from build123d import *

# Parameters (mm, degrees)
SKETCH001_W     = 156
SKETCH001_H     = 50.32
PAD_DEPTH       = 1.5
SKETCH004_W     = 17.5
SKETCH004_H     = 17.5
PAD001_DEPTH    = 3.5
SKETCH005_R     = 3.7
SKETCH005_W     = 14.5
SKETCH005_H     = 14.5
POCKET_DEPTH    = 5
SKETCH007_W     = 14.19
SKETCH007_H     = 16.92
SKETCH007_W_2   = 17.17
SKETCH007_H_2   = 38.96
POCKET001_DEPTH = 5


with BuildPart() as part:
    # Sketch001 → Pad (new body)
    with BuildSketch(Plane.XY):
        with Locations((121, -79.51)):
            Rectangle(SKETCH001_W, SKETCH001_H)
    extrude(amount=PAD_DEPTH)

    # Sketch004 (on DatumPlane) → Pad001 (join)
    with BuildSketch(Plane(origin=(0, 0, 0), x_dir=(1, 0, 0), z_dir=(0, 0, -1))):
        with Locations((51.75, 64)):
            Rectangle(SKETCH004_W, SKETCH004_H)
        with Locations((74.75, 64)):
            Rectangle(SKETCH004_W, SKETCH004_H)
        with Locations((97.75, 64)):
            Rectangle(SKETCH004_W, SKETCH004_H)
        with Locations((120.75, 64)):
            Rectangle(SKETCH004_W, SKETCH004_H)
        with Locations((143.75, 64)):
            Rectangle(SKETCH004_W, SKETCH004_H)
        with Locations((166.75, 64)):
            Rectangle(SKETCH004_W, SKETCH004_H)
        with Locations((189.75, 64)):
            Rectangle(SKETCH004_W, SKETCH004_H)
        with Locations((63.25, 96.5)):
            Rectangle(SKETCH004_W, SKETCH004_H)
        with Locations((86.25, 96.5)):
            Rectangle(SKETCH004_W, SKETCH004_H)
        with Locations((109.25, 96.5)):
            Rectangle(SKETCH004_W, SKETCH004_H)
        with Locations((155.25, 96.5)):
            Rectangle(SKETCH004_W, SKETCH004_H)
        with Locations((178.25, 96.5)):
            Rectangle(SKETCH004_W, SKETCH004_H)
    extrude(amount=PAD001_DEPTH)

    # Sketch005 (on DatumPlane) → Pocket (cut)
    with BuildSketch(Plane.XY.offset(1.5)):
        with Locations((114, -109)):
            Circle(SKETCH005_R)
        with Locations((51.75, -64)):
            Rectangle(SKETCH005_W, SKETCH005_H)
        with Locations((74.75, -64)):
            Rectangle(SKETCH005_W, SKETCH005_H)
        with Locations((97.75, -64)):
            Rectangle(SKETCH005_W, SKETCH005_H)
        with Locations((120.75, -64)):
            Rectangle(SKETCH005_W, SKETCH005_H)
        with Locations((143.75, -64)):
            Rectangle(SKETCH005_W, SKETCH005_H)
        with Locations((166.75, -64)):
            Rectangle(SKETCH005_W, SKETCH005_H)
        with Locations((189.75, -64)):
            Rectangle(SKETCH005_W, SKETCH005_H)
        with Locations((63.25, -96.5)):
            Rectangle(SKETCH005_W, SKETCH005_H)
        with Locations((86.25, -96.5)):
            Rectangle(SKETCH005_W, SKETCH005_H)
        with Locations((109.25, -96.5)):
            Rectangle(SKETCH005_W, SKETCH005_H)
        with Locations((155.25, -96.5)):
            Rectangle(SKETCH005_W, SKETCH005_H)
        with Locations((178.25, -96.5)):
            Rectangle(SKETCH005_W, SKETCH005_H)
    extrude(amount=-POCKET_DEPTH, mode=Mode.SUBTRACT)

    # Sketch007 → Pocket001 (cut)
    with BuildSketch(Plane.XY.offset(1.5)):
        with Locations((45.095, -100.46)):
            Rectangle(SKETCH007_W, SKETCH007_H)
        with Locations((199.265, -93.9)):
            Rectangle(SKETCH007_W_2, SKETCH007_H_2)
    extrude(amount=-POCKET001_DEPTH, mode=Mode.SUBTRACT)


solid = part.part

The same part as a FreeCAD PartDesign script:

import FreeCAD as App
import Part
import Sketcher
from FreeCAD import Vector

doc = App.newDocument("Part")
params = doc.addObject("Spreadsheet::Sheet", "Params")
for row, (alias, value) in enumerate([
    ("sketch1_width", "156 mm"),
    ("sketch1_height", "50.32 mm"),
    ("pad1_length", "1.5 mm"),
    ("sketch2_width", "17.5 mm"),
    ("pad2_length", "3.5 mm"),
    ("sketch3_diameter", "7.4 mm"),
    ("sketch3_width", "14.5 mm"),
    ("pocket1_length", "5 mm"),
    ("sketch4_width", "14.19 mm"),
    ("sketch4_width2", "17.17 mm"),
    ("sketch4_height", "16.92 mm"),
    ("sketch4_height2", "38.96 mm"),
    ("pocket2_length", "5 mm"),
], start=1):
    params.set(f"A{row}", alias)
    params.set(f"B{row}", "=" + value)
    params.setAlias(f"B{row}", alias)

body = doc.addObject("PartDesign::Body", "Body")

# Sketch on XY plane
sketch1 = body.newObject("Sketcher::SketchObject", "Sketch")
sketch1.AttachmentSupport = (doc.getObject("XY_Plane"), [""])
sketch1.MapMode = "FlatFace"
sketch1.addGeometry(Part.LineSegment(Vector(43, -54, 0), Vector(43, -105, 0)), False)
sketch1.addGeometry(Part.LineSegment(Vector(43, -105, 0), Vector(199, -105, 0)), False)
sketch1.addGeometry(Part.LineSegment(Vector(199, -105, 0), Vector(199, -54, 0)), False)
sketch1.addGeometry(Part.LineSegment(Vector(199, -54, 0), Vector(43, -54, 0)), False)
sketch1.addConstraint(Sketcher.Constraint("Coincident", 0, 2, 1, 1))
sketch1.addConstraint(Sketcher.Constraint("Coincident", 1, 2, 2, 1))
sketch1.addConstraint(Sketcher.Constraint("Coincident", 2, 2, 3, 1))
sketch1.addConstraint(Sketcher.Constraint("Coincident", 3, 2, 0, 1))
sketch1.addConstraint(Sketcher.Constraint("Vertical", 0))
sketch1.addConstraint(Sketcher.Constraint("Horizontal", 1))
sketch1.addConstraint(Sketcher.Constraint("Vertical", 2))
sketch1.addConstraint(Sketcher.Constraint("Horizontal", 3))
sketch1.addConstraint(Sketcher.Constraint("DistanceX", 1, 1, 1, 2, 156.0))
sketch1.addConstraint(Sketcher.Constraint("DistanceX", -1, 1, 0, 2, 43.0))
sketch1.addConstraint(Sketcher.Constraint("DistanceY", 0, 2, 0, 1, 50.32))
sketch1.addConstraint(Sketcher.Constraint("DistanceY", 0, 2, -1, 1, 104.67))
sketch1.setExpression("Constraints[8]", "Params.sketch1_width")
sketch1.setExpression("Constraints[10]", "Params.sketch1_height")
pad1 = body.newObject("PartDesign::Pad", "Pad")
pad1.Profile = sketch1
pad1.setExpression("Length", "Params.pad1_length")

# Sketch on XY plane
sketch2 = body.newObject("Sketcher::SketchObject", "Sketch001")
sketch2.AttachmentSupport = (doc.getObject("XY_Plane"), [""])
sketch2.MapMode = "FlatFace"
sketch2.addGeometry(Part.LineSegment(Vector(43, -73, 0), Vector(43, -55, 0)), False)
sketch2.addGeometry(Part.LineSegment(Vector(43, -55, 0), Vector(60, -55, 0)), False)
sketch2.addGeometry(Part.LineSegment(Vector(60, -55, 0), Vector(60, -73, 0)), False)
sketch2.addGeometry(Part.LineSegment(Vector(60, -73, 0), Vector(43, -73, 0)), False)
sketch2.addGeometry(Part.LineSegment(Vector(66, -73, 0), Vector(66, -55, 0)), False)
sketch2.addGeometry(Part.LineSegment(Vector(66, -55, 0), Vector(84, -55, 0)), False)
sketch2.addGeometry(Part.LineSegment(Vector(84, -55, 0), Vector(84, -73, 0)), False)
sketch2.addGeometry(Part.LineSegment(Vector(84, -73, 0), Vector(66, -73, 0)), False)
sketch2.addGeometry(Part.LineSegment(Vector(89, -73, 0), Vector(89, -55, 0)), False)
sketch2.addGeometry(Part.LineSegment(Vector(89, -55, 0), Vector(106, -55, 0)), False)
sketch2.addGeometry(Part.LineSegment(Vector(106, -55, 0), Vector(106, -73, 0)), False)
sketch2.addGeometry(Part.LineSegment(Vector(106, -73, 0), Vector(89, -73, 0)), False)
sketch2.addGeometry(Part.LineSegment(Vector(112, -73, 0), Vector(112, -55, 0)), False)
sketch2.addGeometry(Part.LineSegment(Vector(112, -55, 0), Vector(130, -55, 0)), False)
sketch2.addGeometry(Part.LineSegment(Vector(130, -55, 0), Vector(130, -73, 0)), False)
sketch2.addGeometry(Part.LineSegment(Vector(130, -73, 0), Vector(112, -73, 0)), False)
sketch2.addGeometry(Part.LineSegment(Vector(135, -73, 0), Vector(135, -55, 0)), False)
sketch2.addGeometry(Part.LineSegment(Vector(135, -55, 0), Vector(152, -55, 0)), False)
sketch2.addGeometry(Part.LineSegment(Vector(152, -55, 0), Vector(152, -73, 0)), False)
sketch2.addGeometry(Part.LineSegment(Vector(152, -73, 0), Vector(135, -73, 0)), False)
sketch2.addGeometry(Part.LineSegment(Vector(158, -73, 0), Vector(158, -55, 0)), False)
sketch2.addGeometry(Part.LineSegment(Vector(158, -55, 0), Vector(176, -55, 0)), False)
sketch2.addGeometry(Part.LineSegment(Vector(176, -55, 0), Vector(176, -73, 0)), False)
sketch2.addGeometry(Part.LineSegment(Vector(176, -73, 0), Vector(158, -73, 0)), False)
sketch2.addGeometry(Part.LineSegment(Vector(181, -73, 0), Vector(181, -55, 0)), False)
sketch2.addGeometry(Part.LineSegment(Vector(181, -55, 0), Vector(198, -55, 0)), False)
sketch2.addGeometry(Part.LineSegment(Vector(198, -55, 0), Vector(198, -73, 0)), False)
sketch2.addGeometry(Part.LineSegment(Vector(198, -73, 0), Vector(181, -73, 0)), False)
sketch2.addGeometry(Part.LineSegment(Vector(54, -105, 0), Vector(54, -88, 0)), False)
sketch2.addGeometry(Part.LineSegment(Vector(54, -88, 0), Vector(72, -88, 0)), False)
sketch2.addGeometry(Part.LineSegment(Vector(72, -88, 0), Vector(72, -105, 0)), False)
sketch2.addGeometry(Part.LineSegment(Vector(72, -105, 0), Vector(54, -105, 0)), False)
sketch2.addGeometry(Part.LineSegment(Vector(78, -105, 0), Vector(78, -88, 0)), False)
sketch2.addGeometry(Part.LineSegment(Vector(78, -88, 0), Vector(95, -88, 0)), False)
sketch2.addGeometry(Part.LineSegment(Vector(95, -88, 0), Vector(95, -105, 0)), False)
sketch2.addGeometry(Part.LineSegment(Vector(95, -105, 0), Vector(78, -105, 0)), False)
sketch2.addGeometry(Part.LineSegment(Vector(100, -105, 0), Vector(100, -88, 0)), False)
sketch2.addGeometry(Part.LineSegment(Vector(100, -88, 0), Vector(118, -88, 0)), False)
sketch2.addGeometry(Part.LineSegment(Vector(118, -88, 0), Vector(118, -105, 0)), False)
sketch2.addGeometry(Part.LineSegment(Vector(118, -105, 0), Vector(100, -105, 0)), False)
sketch2.addGeometry(Part.LineSegment(Vector(146, -105, 0), Vector(146, -88, 0)), False)
sketch2.addGeometry(Part.LineSegment(Vector(146, -88, 0), Vector(164, -88, 0)), False)
sketch2.addGeometry(Part.LineSegment(Vector(164, -88, 0), Vector(164, -105, 0)), False)
sketch2.addGeometry(Part.LineSegment(Vector(164, -105, 0), Vector(146, -105, 0)), False)
sketch2.addGeometry(Part.LineSegment(Vector(170, -105, 0), Vector(170, -88, 0)), False)
sketch2.addGeometry(Part.LineSegment(Vector(170, -88, 0), Vector(187, -88, 0)), False)
sketch2.addGeometry(Part.LineSegment(Vector(187, -88, 0), Vector(187, -105, 0)), False)
sketch2.addGeometry(Part.LineSegment(Vector(187, -105, 0), Vector(170, -105, 0)), False)
sketch2.addConstraint(Sketcher.Constraint("Coincident", 0, 2, 1, 1))
sketch2.addConstraint(Sketcher.Constraint("Coincident", 1, 2, 2, 1))
sketch2.addConstraint(Sketcher.Constraint("Coincident", 2, 2, 3, 1))
sketch2.addConstraint(Sketcher.Constraint("Coincident", 3, 2, 0, 1))
sketch2.addConstraint(Sketcher.Constraint("Coincident", 4, 2, 5, 1))
sketch2.addConstraint(Sketcher.Constraint("Coincident", 5, 2, 6, 1))
sketch2.addConstraint(Sketcher.Constraint("Coincident", 6, 2, 7, 1))
sketch2.addConstraint(Sketcher.Constraint("Coincident", 7, 2, 4, 1))
sketch2.addConstraint(Sketcher.Constraint("Coincident", 8, 2, 9, 1))
sketch2.addConstraint(Sketcher.Constraint("Coincident", 9, 2, 10, 1))
sketch2.addConstraint(Sketcher.Constraint("Coincident", 10, 2, 11, 1))
sketch2.addConstraint(Sketcher.Constraint("Coincident", 11, 2, 8, 1))
sketch2.addConstraint(Sketcher.Constraint("Coincident", 12, 2, 13, 1))
sketch2.addConstraint(Sketcher.Constraint("Coincident", 13, 2, 14, 1))
sketch2.addConstraint(Sketcher.Constraint("Coincident", 14, 2, 15, 1))
sketch2.addConstraint(Sketcher.Constraint("Coincident", 15, 2, 12, 1))
sketch2.addConstraint(Sketcher.Constraint("Coincident", 16, 2, 17, 1))
sketch2.addConstraint(Sketcher.Constraint("Coincident", 17, 2, 18, 1))
sketch2.addConstraint(Sketcher.Constraint("Coincident", 18, 2, 19, 1))
sketch2.addConstraint(Sketcher.Constraint("Coincident", 19, 2, 16, 1))
sketch2.addConstraint(Sketcher.Constraint("Coincident", 20, 2, 21, 1))
sketch2.addConstraint(Sketcher.Constraint("Coincident", 21, 2, 22, 1))
sketch2.addConstraint(Sketcher.Constraint("Coincident", 22, 2, 23, 1))
sketch2.addConstraint(Sketcher.Constraint("Coincident", 23, 2, 20, 1))
sketch2.addConstraint(Sketcher.Constraint("Coincident", 24, 2, 25, 1))
sketch2.addConstraint(Sketcher.Constraint("Coincident", 25, 2, 26, 1))
sketch2.addConstraint(Sketcher.Constraint("Coincident", 26, 2, 27, 1))
sketch2.addConstraint(Sketcher.Constraint("Coincident", 27, 2, 24, 1))
sketch2.addConstraint(Sketcher.Constraint("Coincident", 28, 2, 29, 1))
sketch2.addConstraint(Sketcher.Constraint("Coincident", 29, 2, 30, 1))
sketch2.addConstraint(Sketcher.Constraint("Coincident", 30, 2, 31, 1))
sketch2.addConstraint(Sketcher.Constraint("Coincident", 31, 2, 28, 1))
sketch2.addConstraint(Sketcher.Constraint("Coincident", 32, 2, 33, 1))
sketch2.addConstraint(Sketcher.Constraint("Coincident", 33, 2, 34, 1))
sketch2.addConstraint(Sketcher.Constraint("Coincident", 34, 2, 35, 1))
sketch2.addConstraint(Sketcher.Constraint("Coincident", 35, 2, 32, 1))
sketch2.addConstraint(Sketcher.Constraint("Coincident", 36, 2, 37, 1))
sketch2.addConstraint(Sketcher.Constraint("Coincident", 37, 2, 38, 1))
sketch2.addConstraint(Sketcher.Constraint("Coincident", 38, 2, 39, 1))
sketch2.addConstraint(Sketcher.Constraint("Coincident", 39, 2, 36, 1))
sketch2.addConstraint(Sketcher.Constraint("Coincident", 40, 2, 41, 1))
sketch2.addConstraint(Sketcher.Constraint("Coincident", 41, 2, 42, 1))
sketch2.addConstraint(Sketcher.Constraint("Coincident", 42, 2, 43, 1))
sketch2.addConstraint(Sketcher.Constraint("Coincident", 43, 2, 40, 1))
sketch2.addConstraint(Sketcher.Constraint("Coincident", 44, 2, 45, 1))
sketch2.addConstraint(Sketcher.Constraint("Coincident", 45, 2, 46, 1))
sketch2.addConstraint(Sketcher.Constraint("Coincident", 46, 2, 47, 1))
sketch2.addConstraint(Sketcher.Constraint("Coincident", 47, 2, 44, 1))
sketch2.addConstraint(Sketcher.Constraint("Vertical", 0))
sketch2.addConstraint(Sketcher.Constraint("Horizontal", 1))
sketch2.addConstraint(Sketcher.Constraint("Vertical", 2))
sketch2.addConstraint(Sketcher.Constraint("Horizontal", 3))
sketch2.addConstraint(Sketcher.Constraint("Vertical", 4))
sketch2.addConstraint(Sketcher.Constraint("Horizontal", 5))
sketch2.addConstraint(Sketcher.Constraint("Vertical", 6))
sketch2.addConstraint(Sketcher.Constraint("Horizontal", 7))
sketch2.addConstraint(Sketcher.Constraint("Vertical", 8))
sketch2.addConstraint(Sketcher.Constraint("Horizontal", 9))
sketch2.addConstraint(Sketcher.Constraint("Vertical", 10))
sketch2.addConstraint(Sketcher.Constraint("Horizontal", 11))
sketch2.addConstraint(Sketcher.Constraint("Vertical", 12))
sketch2.addConstraint(Sketcher.Constraint("Horizontal", 13))
sketch2.addConstraint(Sketcher.Constraint("Vertical", 14))
sketch2.addConstraint(Sketcher.Constraint("Horizontal", 15))
sketch2.addConstraint(Sketcher.Constraint("Vertical", 16))
sketch2.addConstraint(Sketcher.Constraint("Horizontal", 17))
sketch2.addConstraint(Sketcher.Constraint("Vertical", 18))
sketch2.addConstraint(Sketcher.Constraint("Horizontal", 19))
sketch2.addConstraint(Sketcher.Constraint("Vertical", 20))
sketch2.addConstraint(Sketcher.Constraint("Horizontal", 21))
sketch2.addConstraint(Sketcher.Constraint("Vertical", 22))
sketch2.addConstraint(Sketcher.Constraint("Horizontal", 23))
sketch2.addConstraint(Sketcher.Constraint("Vertical", 24))
sketch2.addConstraint(Sketcher.Constraint("Horizontal", 25))
sketch2.addConstraint(Sketcher.Constraint("Vertical", 26))
sketch2.addConstraint(Sketcher.Constraint("Horizontal", 27))
sketch2.addConstraint(Sketcher.Constraint("Vertical", 28))
sketch2.addConstraint(Sketcher.Constraint("Horizontal", 29))
sketch2.addConstraint(Sketcher.Constraint("Vertical", 30))
sketch2.addConstraint(Sketcher.Constraint("Horizontal", 31))
sketch2.addConstraint(Sketcher.Constraint("Vertical", 32))
sketch2.addConstraint(Sketcher.Constraint("Horizontal", 33))
sketch2.addConstraint(Sketcher.Constraint("Vertical", 34))
sketch2.addConstraint(Sketcher.Constraint("Horizontal", 35))
sketch2.addConstraint(Sketcher.Constraint("Vertical", 36))
sketch2.addConstraint(Sketcher.Constraint("Horizontal", 37))
sketch2.addConstraint(Sketcher.Constraint("Vertical", 38))
sketch2.addConstraint(Sketcher.Constraint("Horizontal", 39))
sketch2.addConstraint(Sketcher.Constraint("Vertical", 40))
sketch2.addConstraint(Sketcher.Constraint("Horizontal", 41))
sketch2.addConstraint(Sketcher.Constraint("Vertical", 42))
sketch2.addConstraint(Sketcher.Constraint("Horizontal", 43))
sketch2.addConstraint(Sketcher.Constraint("Vertical", 44))
sketch2.addConstraint(Sketcher.Constraint("Horizontal", 45))
sketch2.addConstraint(Sketcher.Constraint("Vertical", 46))
sketch2.addConstraint(Sketcher.Constraint("Horizontal", 47))
sketch2.addConstraint(Sketcher.Constraint("Horizontal", 1, 2, 4, 2))
sketch2.addConstraint(Sketcher.Constraint("Horizontal", 3, 2, 6, 2))
sketch2.addConstraint(Sketcher.Constraint("Horizontal", 5, 2, 8, 2))
sketch2.addConstraint(Sketcher.Constraint("Horizontal", 7, 2, 10, 2))
sketch2.addConstraint(Sketcher.Constraint("Horizontal", 9, 2, 12, 2))
sketch2.addConstraint(Sketcher.Constraint("Horizontal", 11, 2, 14, 2))
sketch2.addConstraint(Sketcher.Constraint("Horizontal", 13, 2, 16, 2))
sketch2.addConstraint(Sketcher.Constraint("Horizontal", 15, 2, 18, 2))
sketch2.addConstraint(Sketcher.Constraint("Horizontal", 17, 2, 20, 2))
sketch2.addConstraint(Sketcher.Constraint("Horizontal", 19, 2, 22, 2))
sketch2.addConstraint(Sketcher.Constraint("Horizontal", 21, 2, 24, 2))
sketch2.addConstraint(Sketcher.Constraint("Horizontal", 23, 2, 26, 2))
sketch2.addConstraint(Sketcher.Constraint("Horizontal", 29, 2, 32, 2))
sketch2.addConstraint(Sketcher.Constraint("Horizontal", 31, 2, 34, 2))
sketch2.addConstraint(Sketcher.Constraint("Horizontal", 33, 2, 36, 2))
sketch2.addConstraint(Sketcher.Constraint("Horizontal", 35, 2, 38, 2))
sketch2.addConstraint(Sketcher.Constraint("Horizontal", 37, 2, 40, 2))
sketch2.addConstraint(Sketcher.Constraint("Horizontal", 39, 2, 42, 2))
sketch2.addConstraint(Sketcher.Constraint("Horizontal", 41, 2, 44, 2))
sketch2.addConstraint(Sketcher.Constraint("Horizontal", 43, 2, 46, 2))
sketch2.addConstraint(Sketcher.Constraint("Equal", 3, 5))
sketch2.addConstraint(Sketcher.Constraint("Equal", 7, 9))
sketch2.addConstraint(Sketcher.Constraint("Equal", 11, 13))
sketch2.addConstraint(Sketcher.Constraint("Equal", 15, 17))
sketch2.addConstraint(Sketcher.Constraint("Equal", 19, 21))
sketch2.addConstraint(Sketcher.Constraint("Equal", 23, 25))
sketch2.addConstraint(Sketcher.Constraint("Equal", 27, 29))
sketch2.addConstraint(Sketcher.Constraint("Equal", 31, 33))
sketch2.addConstraint(Sketcher.Constraint("Equal", 35, 37))
sketch2.addConstraint(Sketcher.Constraint("Equal", 39, 41))
sketch2.addConstraint(Sketcher.Constraint("Equal", 43, 45))
sketch2.addConstraint(Sketcher.Constraint("Equal", 47, 0))
sketch2.addConstraint(Sketcher.Constraint("Equal", 26, 28))
sketch2.addConstraint(Sketcher.Constraint("DistanceX", 1, 1, 1, 2, 17.5))
sketch2.addConstraint(Sketcher.Constraint("DistanceX", -1, 1, 0, 2, 43.0))
sketch2.addConstraint(Sketcher.Constraint("DistanceX", -1, 1, 4, 2, 66.0))
sketch2.addConstraint(Sketcher.Constraint("DistanceX", -1, 1, 8, 2, 89.0))
sketch2.addConstraint(Sketcher.Constraint("DistanceX", -1, 1, 12, 2, 112.0))
sketch2.addConstraint(Sketcher.Constraint("DistanceX", -1, 1, 16, 2, 135.0))
sketch2.addConstraint(Sketcher.Constraint("DistanceX", -1, 1, 20, 2, 158.0))
sketch2.addConstraint(Sketcher.Constraint("DistanceX", -1, 1, 24, 2, 181.0))
sketch2.addConstraint(Sketcher.Constraint("DistanceX", -1, 1, 29, 2, 72.0))
sketch2.addConstraint(Sketcher.Constraint("DistanceX", -1, 1, 33, 2, 95.0))
sketch2.addConstraint(Sketcher.Constraint("DistanceX", -1, 1, 37, 2, 118.0))
sketch2.addConstraint(Sketcher.Constraint("DistanceX", -1, 1, 41, 2, 164.0))
sketch2.addConstraint(Sketcher.Constraint("DistanceX", -1, 1, 45, 2, 187.0))
sketch2.addConstraint(Sketcher.Constraint("DistanceY", 28, 2, 2, 2, 15.0))
sketch2.addConstraint(Sketcher.Constraint("DistanceY", 0, 2, -1, 1, 55.25))
sketch2.setExpression("Constraints[129]", "Params.sketch2_width")
pad2 = body.newObject("PartDesign::Pad", "Pad001")
pad2.Profile = sketch2
pad2.setExpression("Length", "Params.pad2_length")
pad2.Reversed = True

# Sketch on XY plane
sketch3 = body.newObject("Sketcher::SketchObject", "Sketch002")
sketch3.AttachmentSupport = (doc.getObject("XY_Plane"), [""])
sketch3.MapMode = "FlatFace"
sketch3.AttachmentOffset = App.Placement(Vector(0, 0, 1.5), App.Rotation())
sketch3.addGeometry(Part.Circle(Vector(114, -109, 0), Vector(0, 0, 1), 3.7), False)
sketch3.addGeometry(Part.LineSegment(Vector(44.5, -56.8, 0), Vector(44.5, -71.2, 0)), False)
sketch3.addGeometry(Part.LineSegment(Vector(44.5, -71.2, 0), Vector(59, -71.2, 0)), False)
sketch3.addGeometry(Part.LineSegment(Vector(59, -71.2, 0), Vector(59, -56.8, 0)), False)
sketch3.addGeometry(Part.LineSegment(Vector(59, -56.8, 0), Vector(44.5, -56.8, 0)), False)
sketch3.addGeometry(Part.LineSegment(Vector(67.5, -56.8, 0), Vector(67.5, -71.2, 0)), False)
sketch3.addGeometry(Part.LineSegment(Vector(67.5, -71.2, 0), Vector(82, -71.2, 0)), False)
sketch3.addGeometry(Part.LineSegment(Vector(82, -71.2, 0), Vector(82, -56.8, 0)), False)
sketch3.addGeometry(Part.LineSegment(Vector(82, -56.8, 0), Vector(67.5, -56.8, 0)), False)
sketch3.addGeometry(Part.LineSegment(Vector(90.5, -56.8, 0), Vector(90.5, -71.2, 0)), False)
sketch3.addGeometry(Part.LineSegment(Vector(90.5, -71.2, 0), Vector(105, -71.2, 0)), False)
sketch3.addGeometry(Part.LineSegment(Vector(105, -71.2, 0), Vector(105, -56.8, 0)), False)
sketch3.addGeometry(Part.LineSegment(Vector(105, -56.8, 0), Vector(90.5, -56.8, 0)), False)
sketch3.addGeometry(Part.LineSegment(Vector(113.5, -56.8, 0), Vector(113.5, -71.2, 0)), False)
sketch3.addGeometry(Part.LineSegment(Vector(113.5, -71.2, 0), Vector(128, -71.2, 0)), False)
sketch3.addGeometry(Part.LineSegment(Vector(128, -71.2, 0), Vector(128, -56.8, 0)), False)
sketch3.addGeometry(Part.LineSegment(Vector(128, -56.8, 0), Vector(113.5, -56.8, 0)), False)
sketch3.addGeometry(Part.LineSegment(Vector(136.5, -56.8, 0), Vector(136.5, -71.2, 0)), False)
sketch3.addGeometry(Part.LineSegment(Vector(136.5, -71.2, 0), Vector(151, -71.2, 0)), False)
sketch3.addGeometry(Part.LineSegment(Vector(151, -71.2, 0), Vector(151, -56.8, 0)), False)
sketch3.addGeometry(Part.LineSegment(Vector(151, -56.8, 0), Vector(136.5, -56.8, 0)), False)
sketch3.addGeometry(Part.LineSegment(Vector(159.5, -56.8, 0), Vector(159.5, -71.2, 0)), False)
sketch3.addGeometry(Part.LineSegment(Vector(159.5, -71.2, 0), Vector(174, -71.2, 0)), False)
sketch3.addGeometry(Part.LineSegment(Vector(174, -71.2, 0), Vector(174, -56.8, 0)), False)
sketch3.addGeometry(Part.LineSegment(Vector(174, -56.8, 0), Vector(159.5, -56.8, 0)), False)
sketch3.addGeometry(Part.LineSegment(Vector(182.5, -56.8, 0), Vector(182.5, -71.2, 0)), False)
sketch3.addGeometry(Part.LineSegment(Vector(182.5, -71.2, 0), Vector(197, -71.2, 0)), False)
sketch3.addGeometry(Part.LineSegment(Vector(197, -71.2, 0), Vector(197, -56.8, 0)), False)
sketch3.addGeometry(Part.LineSegment(Vector(197, -56.8, 0), Vector(182.5, -56.8, 0)), False)
sketch3.addGeometry(Part.LineSegment(Vector(56, -89.2, 0), Vector(56, -103.8, 0)), False)
sketch3.addGeometry(Part.LineSegment(Vector(56, -103.8, 0), Vector(70.5, -103.8, 0)), False)
sketch3.addGeometry(Part.LineSegment(Vector(70.5, -103.8, 0), Vector(70.5, -89.2, 0)), False)
sketch3.addGeometry(Part.LineSegment(Vector(70.5, -89.2, 0), Vector(56, -89.2, 0)), False)
sketch3.addGeometry(Part.LineSegment(Vector(79, -89.2, 0), Vector(79, -103.8, 0)), False)
sketch3.addGeometry(Part.LineSegment(Vector(79, -103.8, 0), Vector(93.5, -103.8, 0)), False)
sketch3.addGeometry(Part.LineSegment(Vector(93.5, -103.8, 0), Vector(93.5, -89.2, 0)), False)
sketch3.addGeometry(Part.LineSegment(Vector(93.5, -89.2, 0), Vector(79, -89.2, 0)), False)
sketch3.addGeometry(Part.LineSegment(Vector(102, -89.2, 0), Vector(102, -103.8, 0)), False)
sketch3.addGeometry(Part.LineSegment(Vector(102, -103.8, 0), Vector(116.5, -103.8, 0)), False)
sketch3.addGeometry(Part.LineSegment(Vector(116.5, -103.8, 0), Vector(116.5, -89.2, 0)), False)
sketch3.addGeometry(Part.LineSegment(Vector(116.5, -89.2, 0), Vector(102, -89.2, 0)), False)
sketch3.addGeometry(Part.LineSegment(Vector(148, -89.2, 0), Vector(148, -103.8, 0)), False)
sketch3.addGeometry(Part.LineSegment(Vector(148, -103.8, 0), Vector(162.5, -103.8, 0)), False)
sketch3.addGeometry(Part.LineSegment(Vector(162.5, -103.8, 0), Vector(162.5, -89.2, 0)), False)
sketch3.addGeometry(Part.LineSegment(Vector(162.5, -89.2, 0), Vector(148, -89.2, 0)), False)
sketch3.addGeometry(Part.LineSegment(Vector(171, -89.2, 0), Vector(171, -103.8, 0)), False)
sketch3.addGeometry(Part.LineSegment(Vector(171, -103.8, 0), Vector(185.5, -103.8, 0)), False)
sketch3.addGeometry(Part.LineSegment(Vector(185.5, -103.8, 0), Vector(185.5, -89.2, 0)), False)
sketch3.addGeometry(Part.LineSegment(Vector(185.5, -89.2, 0), Vector(171, -89.2, 0)), False)
sketch3.addConstraint(Sketcher.Constraint("Coincident", 1, 2, 2, 1))
sketch3.addConstraint(Sketcher.Constraint("Coincident", 2, 2, 3, 1))
sketch3.addConstraint(Sketcher.Constraint("Coincident", 3, 2, 4, 1))
sketch3.addConstraint(Sketcher.Constraint("Coincident", 4, 2, 1, 1))
sketch3.addConstraint(Sketcher.Constraint("Coincident", 5, 2, 6, 1))
sketch3.addConstraint(Sketcher.Constraint("Coincident", 6, 2, 7, 1))
sketch3.addConstraint(Sketcher.Constraint("Coincident", 7, 2, 8, 1))
sketch3.addConstraint(Sketcher.Constraint("Coincident", 8, 2, 5, 1))
sketch3.addConstraint(Sketcher.Constraint("Coincident", 9, 2, 10, 1))
sketch3.addConstraint(Sketcher.Constraint("Coincident", 10, 2, 11, 1))
sketch3.addConstraint(Sketcher.Constraint("Coincident", 11, 2, 12, 1))
sketch3.addConstraint(Sketcher.Constraint("Coincident", 12, 2, 9, 1))
sketch3.addConstraint(Sketcher.Constraint("Coincident", 13, 2, 14, 1))
sketch3.addConstraint(Sketcher.Constraint("Coincident", 14, 2, 15, 1))
sketch3.addConstraint(Sketcher.Constraint("Coincident", 15, 2, 16, 1))
sketch3.addConstraint(Sketcher.Constraint("Coincident", 16, 2, 13, 1))
sketch3.addConstraint(Sketcher.Constraint("Coincident", 17, 2, 18, 1))
sketch3.addConstraint(Sketcher.Constraint("Coincident", 18, 2, 19, 1))
sketch3.addConstraint(Sketcher.Constraint("Coincident", 19, 2, 20, 1))
sketch3.addConstraint(Sketcher.Constraint("Coincident", 20, 2, 17, 1))
sketch3.addConstraint(Sketcher.Constraint("Coincident", 21, 2, 22, 1))
sketch3.addConstraint(Sketcher.Constraint("Coincident", 22, 2, 23, 1))
sketch3.addConstraint(Sketcher.Constraint("Coincident", 23, 2, 24, 1))
sketch3.addConstraint(Sketcher.Constraint("Coincident", 24, 2, 21, 1))
sketch3.addConstraint(Sketcher.Constraint("Coincident", 25, 2, 26, 1))
sketch3.addConstraint(Sketcher.Constraint("Coincident", 26, 2, 27, 1))
sketch3.addConstraint(Sketcher.Constraint("Coincident", 27, 2, 28, 1))
sketch3.addConstraint(Sketcher.Constraint("Coincident", 28, 2, 25, 1))
sketch3.addConstraint(Sketcher.Constraint("Coincident", 29, 2, 30, 1))
sketch3.addConstraint(Sketcher.Constraint("Coincident", 30, 2, 31, 1))
sketch3.addConstraint(Sketcher.Constraint("Coincident", 31, 2, 32, 1))
sketch3.addConstraint(Sketcher.Constraint("Coincident", 32, 2, 29, 1))
sketch3.addConstraint(Sketcher.Constraint("Coincident", 33, 2, 34, 1))
sketch3.addConstraint(Sketcher.Constraint("Coincident", 34, 2, 35, 1))
sketch3.addConstraint(Sketcher.Constraint("Coincident", 35, 2, 36, 1))
sketch3.addConstraint(Sketcher.Constraint("Coincident", 36, 2, 33, 1))
sketch3.addConstraint(Sketcher.Constraint("Coincident", 37, 2, 38, 1))
sketch3.addConstraint(Sketcher.Constraint("Coincident", 38, 2, 39, 1))
sketch3.addConstraint(Sketcher.Constraint("Coincident", 39, 2, 40, 1))
sketch3.addConstraint(Sketcher.Constraint("Coincident", 40, 2, 37, 1))
sketch3.addConstraint(Sketcher.Constraint("Coincident", 41, 2, 42, 1))
sketch3.addConstraint(Sketcher.Constraint("Coincident", 42, 2, 43, 1))
sketch3.addConstraint(Sketcher.Constraint("Coincident", 43, 2, 44, 1))
sketch3.addConstraint(Sketcher.Constraint("Coincident", 44, 2, 41, 1))
sketch3.addConstraint(Sketcher.Constraint("Coincident", 45, 2, 46, 1))
sketch3.addConstraint(Sketcher.Constraint("Coincident", 46, 2, 47, 1))
sketch3.addConstraint(Sketcher.Constraint("Coincident", 47, 2, 48, 1))
sketch3.addConstraint(Sketcher.Constraint("Coincident", 48, 2, 45, 1))
sketch3.addConstraint(Sketcher.Constraint("Vertical", 1))
sketch3.addConstraint(Sketcher.Constraint("Horizontal", 2))
sketch3.addConstraint(Sketcher.Constraint("Vertical", 3))
sketch3.addConstraint(Sketcher.Constraint("Horizontal", 4))
sketch3.addConstraint(Sketcher.Constraint("Vertical", 5))
sketch3.addConstraint(Sketcher.Constraint("Horizontal", 6))
sketch3.addConstraint(Sketcher.Constraint("Vertical", 7))
sketch3.addConstraint(Sketcher.Constraint("Horizontal", 8))
sketch3.addConstraint(Sketcher.Constraint("Vertical", 9))
sketch3.addConstraint(Sketcher.Constraint("Horizontal", 10))
sketch3.addConstraint(Sketcher.Constraint("Vertical", 11))
sketch3.addConstraint(Sketcher.Constraint("Horizontal", 12))
sketch3.addConstraint(Sketcher.Constraint("Vertical", 13))
sketch3.addConstraint(Sketcher.Constraint("Horizontal", 14))
sketch3.addConstraint(Sketcher.Constraint("Vertical", 15))
sketch3.addConstraint(Sketcher.Constraint("Horizontal", 16))
sketch3.addConstraint(Sketcher.Constraint("Vertical", 17))
sketch3.addConstraint(Sketcher.Constraint("Horizontal", 18))
sketch3.addConstraint(Sketcher.Constraint("Vertical", 19))
sketch3.addConstraint(Sketcher.Constraint("Horizontal", 20))
sketch3.addConstraint(Sketcher.Constraint("Vertical", 21))
sketch3.addConstraint(Sketcher.Constraint("Horizontal", 22))
sketch3.addConstraint(Sketcher.Constraint("Vertical", 23))
sketch3.addConstraint(Sketcher.Constraint("Horizontal", 24))
sketch3.addConstraint(Sketcher.Constraint("Vertical", 25))
sketch3.addConstraint(Sketcher.Constraint("Horizontal", 26))
sketch3.addConstraint(Sketcher.Constraint("Vertical", 27))
sketch3.addConstraint(Sketcher.Constraint("Horizontal", 28))
sketch3.addConstraint(Sketcher.Constraint("Vertical", 29))
sketch3.addConstraint(Sketcher.Constraint("Horizontal", 30))
sketch3.addConstraint(Sketcher.Constraint("Vertical", 31))
sketch3.addConstraint(Sketcher.Constraint("Horizontal", 32))
sketch3.addConstraint(Sketcher.Constraint("Vertical", 33))
sketch3.addConstraint(Sketcher.Constraint("Horizontal", 34))
sketch3.addConstraint(Sketcher.Constraint("Vertical", 35))
sketch3.addConstraint(Sketcher.Constraint("Horizontal", 36))
sketch3.addConstraint(Sketcher.Constraint("Vertical", 37))
sketch3.addConstraint(Sketcher.Constraint("Horizontal", 38))
sketch3.addConstraint(Sketcher.Constraint("Vertical", 39))
sketch3.addConstraint(Sketcher.Constraint("Horizontal", 40))
sketch3.addConstraint(Sketcher.Constraint("Vertical", 41))
sketch3.addConstraint(Sketcher.Constraint("Horizontal", 42))
sketch3.addConstraint(Sketcher.Constraint("Vertical", 43))
sketch3.addConstraint(Sketcher.Constraint("Horizontal", 44))
sketch3.addConstraint(Sketcher.Constraint("Vertical", 45))
sketch3.addConstraint(Sketcher.Constraint("Horizontal", 46))
sketch3.addConstraint(Sketcher.Constraint("Vertical", 47))
sketch3.addConstraint(Sketcher.Constraint("Horizontal", 48))
sketch3.addConstraint(Sketcher.Constraint("Horizontal", 2, 2, 5, 2))
sketch3.addConstraint(Sketcher.Constraint("Horizontal", 4, 2, 7, 2))
sketch3.addConstraint(Sketcher.Constraint("Horizontal", 6, 2, 9, 2))
sketch3.addConstraint(Sketcher.Constraint("Horizontal", 8, 2, 11, 2))
sketch3.addConstraint(Sketcher.Constraint("Horizontal", 10, 2, 13, 2))
sketch3.addConstraint(Sketcher.Constraint("Horizontal", 12, 2, 15, 2))
sketch3.addConstraint(Sketcher.Constraint("Horizontal", 14, 2, 17, 2))
sketch3.addConstraint(Sketcher.Constraint("Horizontal", 16, 2, 19, 2))
sketch3.addConstraint(Sketcher.Constraint("Horizontal", 18, 2, 21, 2))
sketch3.addConstraint(Sketcher.Constraint("Horizontal", 20, 2, 23, 2))
sketch3.addConstraint(Sketcher.Constraint("Horizontal", 22, 2, 25, 2))
sketch3.addConstraint(Sketcher.Constraint("Horizontal", 24, 2, 27, 2))
sketch3.addConstraint(Sketcher.Constraint("Horizontal", 30, 2, 33, 2))
sketch3.addConstraint(Sketcher.Constraint("Horizontal", 32, 2, 35, 2))
sketch3.addConstraint(Sketcher.Constraint("Horizontal", 34, 2, 37, 2))
sketch3.addConstraint(Sketcher.Constraint("Horizontal", 36, 2, 39, 2))
sketch3.addConstraint(Sketcher.Constraint("Horizontal", 38, 2, 41, 2))
sketch3.addConstraint(Sketcher.Constraint("Horizontal", 40, 2, 43, 2))
sketch3.addConstraint(Sketcher.Constraint("Horizontal", 42, 2, 45, 2))
sketch3.addConstraint(Sketcher.Constraint("Horizontal", 44, 2, 47, 2))
sketch3.addConstraint(Sketcher.Constraint("Equal", 4, 6))
sketch3.addConstraint(Sketcher.Constraint("Equal", 8, 10))
sketch3.addConstraint(Sketcher.Constraint("Equal", 12, 14))
sketch3.addConstraint(Sketcher.Constraint("Equal", 16, 18))
sketch3.addConstraint(Sketcher.Constraint("Equal", 20, 22))
sketch3.addConstraint(Sketcher.Constraint("Equal", 24, 26))
sketch3.addConstraint(Sketcher.Constraint("Equal", 28, 30))
sketch3.addConstraint(Sketcher.Constraint("Equal", 32, 34))
sketch3.addConstraint(Sketcher.Constraint("Equal", 36, 38))
sketch3.addConstraint(Sketcher.Constraint("Equal", 40, 42))
sketch3.addConstraint(Sketcher.Constraint("Equal", 44, 46))
sketch3.addConstraint(Sketcher.Constraint("Equal", 48, 1))
sketch3.addConstraint(Sketcher.Constraint("Equal", 27, 29))
sketch3.addConstraint(Sketcher.Constraint("Diameter", 0, 7.4))
sketch3.addConstraint(Sketcher.Constraint("DistanceX", 2, 1, 2, 2, 14.5))
sketch3.addConstraint(Sketcher.Constraint("DistanceX", -1, 1, 0, 3, 114.0))
sketch3.addConstraint(Sketcher.Constraint("DistanceY", 0, 3, -1, 1, 109.0))
sketch3.addConstraint(Sketcher.Constraint("DistanceX", -1, 1, 2, 2, 59.0))
sketch3.addConstraint(Sketcher.Constraint("DistanceX", -1, 1, 6, 2, 82.0))
sketch3.addConstraint(Sketcher.Constraint("DistanceX", -1, 1, 10, 2, 105.0))
sketch3.addConstraint(Sketcher.Constraint("DistanceX", -1, 1, 14, 2, 128.0))
sketch3.addConstraint(Sketcher.Constraint("DistanceX", -1, 1, 18, 2, 151.0))
sketch3.addConstraint(Sketcher.Constraint("DistanceX", -1, 1, 22, 2, 174.0))
sketch3.addConstraint(Sketcher.Constraint("DistanceX", -1, 1, 26, 2, 197.0))
sketch3.addConstraint(Sketcher.Constraint("DistanceX", -1, 1, 29, 2, 56.0))
sketch3.addConstraint(Sketcher.Constraint("DistanceX", -1, 1, 33, 2, 79.0))
sketch3.addConstraint(Sketcher.Constraint("DistanceX", -1, 1, 37, 2, 102.0))
sketch3.addConstraint(Sketcher.Constraint("DistanceX", -1, 1, 41, 2, 148.0))
sketch3.addConstraint(Sketcher.Constraint("DistanceX", -1, 1, 45, 2, 171.0))
sketch3.addConstraint(Sketcher.Constraint("DistanceY", 29, 2, 3, 2, 47.0))
sketch3.addConstraint(Sketcher.Constraint("DistanceY", 1, 2, -1, 1, 71.25))
sketch3.setExpression("Constraints[129]", "Params.sketch3_diameter")
sketch3.setExpression("Constraints[130]", "Params.sketch3_width")
pocket1 = body.newObject("PartDesign::Pocket", "Pocket")
pocket1.Profile = sketch3
pocket1.setExpression("Length", "Params.pocket1_length")

# Sketch on XY plane
sketch4 = body.newObject("Sketcher::SketchObject", "Sketch003")
sketch4.AttachmentSupport = (doc.getObject("XY_Plane"), [""])
sketch4.MapMode = "FlatFace"
sketch4.AttachmentOffset = App.Placement(Vector(0, 0, 1.5), App.Rotation())
sketch4.addGeometry(Part.LineSegment(Vector(38, -92, 0), Vector(38, -109, 0)), False)
sketch4.addGeometry(Part.LineSegment(Vector(38, -109, 0), Vector(52, -109, 0)), False)
sketch4.addGeometry(Part.LineSegment(Vector(52, -109, 0), Vector(52, -92, 0)), False)
sketch4.addGeometry(Part.LineSegment(Vector(52, -92, 0), Vector(38, -92, 0)), False)
sketch4.addGeometry(Part.LineSegment(Vector(191, -74, 0), Vector(191, -113, 0)), False)
sketch4.addGeometry(Part.LineSegment(Vector(191, -113, 0), Vector(208, -113, 0)), False)
sketch4.addGeometry(Part.LineSegment(Vector(208, -113, 0), Vector(208, -74, 0)), False)
sketch4.addGeometry(Part.LineSegment(Vector(208, -74, 0), Vector(191, -74, 0)), False)
sketch4.addConstraint(Sketcher.Constraint("Coincident", 0, 2, 1, 1))
sketch4.addConstraint(Sketcher.Constraint("Coincident", 1, 2, 2, 1))
sketch4.addConstraint(Sketcher.Constraint("Coincident", 2, 2, 3, 1))
sketch4.addConstraint(Sketcher.Constraint("Coincident", 3, 2, 0, 1))
sketch4.addConstraint(Sketcher.Constraint("Coincident", 4, 2, 5, 1))
sketch4.addConstraint(Sketcher.Constraint("Coincident", 5, 2, 6, 1))
sketch4.addConstraint(Sketcher.Constraint("Coincident", 6, 2, 7, 1))
sketch4.addConstraint(Sketcher.Constraint("Coincident", 7, 2, 4, 1))
sketch4.addConstraint(Sketcher.Constraint("Vertical", 0))
sketch4.addConstraint(Sketcher.Constraint("Horizontal", 1))
sketch4.addConstraint(Sketcher.Constraint("Vertical", 2))
sketch4.addConstraint(Sketcher.Constraint("Horizontal", 3))
sketch4.addConstraint(Sketcher.Constraint("Vertical", 4))
sketch4.addConstraint(Sketcher.Constraint("Horizontal", 5))
sketch4.addConstraint(Sketcher.Constraint("Vertical", 6))
sketch4.addConstraint(Sketcher.Constraint("Horizontal", 7))
sketch4.addConstraint(Sketcher.Constraint("DistanceX", -1, 1, 0, 2, 38.0))
sketch4.addConstraint(Sketcher.Constraint("DistanceY", 2, 2, -1, 1, 92.0))
sketch4.addConstraint(Sketcher.Constraint("DistanceX", 1, 1, 1, 2, 14.19))
sketch4.addConstraint(Sketcher.Constraint("DistanceX", 5, 1, 5, 2, 17.17))
sketch4.addConstraint(Sketcher.Constraint("DistanceY", 0, 2, 0, 1, 16.92))
sketch4.addConstraint(Sketcher.Constraint("DistanceY", 4, 2, 4, 1, 38.96))
sketch4.addConstraint(Sketcher.Constraint("DistanceY", 1, 2, 6, 2, 34.5))
sketch4.addConstraint(Sketcher.Constraint("DistanceX", -1, 1, 4, 2, 190.68))
sketch4.setExpression("Constraints[18]", "Params.sketch4_width")
sketch4.setExpression("Constraints[19]", "Params.sketch4_width2")
sketch4.setExpression("Constraints[20]", "Params.sketch4_height")
sketch4.setExpression("Constraints[21]", "Params.sketch4_height2")
pocket2 = body.newObject("PartDesign::Pocket", "Pocket001")
pocket2.Profile = sketch4
pocket2.setExpression("Length", "Params.pocket2_length")

doc.recompute()
